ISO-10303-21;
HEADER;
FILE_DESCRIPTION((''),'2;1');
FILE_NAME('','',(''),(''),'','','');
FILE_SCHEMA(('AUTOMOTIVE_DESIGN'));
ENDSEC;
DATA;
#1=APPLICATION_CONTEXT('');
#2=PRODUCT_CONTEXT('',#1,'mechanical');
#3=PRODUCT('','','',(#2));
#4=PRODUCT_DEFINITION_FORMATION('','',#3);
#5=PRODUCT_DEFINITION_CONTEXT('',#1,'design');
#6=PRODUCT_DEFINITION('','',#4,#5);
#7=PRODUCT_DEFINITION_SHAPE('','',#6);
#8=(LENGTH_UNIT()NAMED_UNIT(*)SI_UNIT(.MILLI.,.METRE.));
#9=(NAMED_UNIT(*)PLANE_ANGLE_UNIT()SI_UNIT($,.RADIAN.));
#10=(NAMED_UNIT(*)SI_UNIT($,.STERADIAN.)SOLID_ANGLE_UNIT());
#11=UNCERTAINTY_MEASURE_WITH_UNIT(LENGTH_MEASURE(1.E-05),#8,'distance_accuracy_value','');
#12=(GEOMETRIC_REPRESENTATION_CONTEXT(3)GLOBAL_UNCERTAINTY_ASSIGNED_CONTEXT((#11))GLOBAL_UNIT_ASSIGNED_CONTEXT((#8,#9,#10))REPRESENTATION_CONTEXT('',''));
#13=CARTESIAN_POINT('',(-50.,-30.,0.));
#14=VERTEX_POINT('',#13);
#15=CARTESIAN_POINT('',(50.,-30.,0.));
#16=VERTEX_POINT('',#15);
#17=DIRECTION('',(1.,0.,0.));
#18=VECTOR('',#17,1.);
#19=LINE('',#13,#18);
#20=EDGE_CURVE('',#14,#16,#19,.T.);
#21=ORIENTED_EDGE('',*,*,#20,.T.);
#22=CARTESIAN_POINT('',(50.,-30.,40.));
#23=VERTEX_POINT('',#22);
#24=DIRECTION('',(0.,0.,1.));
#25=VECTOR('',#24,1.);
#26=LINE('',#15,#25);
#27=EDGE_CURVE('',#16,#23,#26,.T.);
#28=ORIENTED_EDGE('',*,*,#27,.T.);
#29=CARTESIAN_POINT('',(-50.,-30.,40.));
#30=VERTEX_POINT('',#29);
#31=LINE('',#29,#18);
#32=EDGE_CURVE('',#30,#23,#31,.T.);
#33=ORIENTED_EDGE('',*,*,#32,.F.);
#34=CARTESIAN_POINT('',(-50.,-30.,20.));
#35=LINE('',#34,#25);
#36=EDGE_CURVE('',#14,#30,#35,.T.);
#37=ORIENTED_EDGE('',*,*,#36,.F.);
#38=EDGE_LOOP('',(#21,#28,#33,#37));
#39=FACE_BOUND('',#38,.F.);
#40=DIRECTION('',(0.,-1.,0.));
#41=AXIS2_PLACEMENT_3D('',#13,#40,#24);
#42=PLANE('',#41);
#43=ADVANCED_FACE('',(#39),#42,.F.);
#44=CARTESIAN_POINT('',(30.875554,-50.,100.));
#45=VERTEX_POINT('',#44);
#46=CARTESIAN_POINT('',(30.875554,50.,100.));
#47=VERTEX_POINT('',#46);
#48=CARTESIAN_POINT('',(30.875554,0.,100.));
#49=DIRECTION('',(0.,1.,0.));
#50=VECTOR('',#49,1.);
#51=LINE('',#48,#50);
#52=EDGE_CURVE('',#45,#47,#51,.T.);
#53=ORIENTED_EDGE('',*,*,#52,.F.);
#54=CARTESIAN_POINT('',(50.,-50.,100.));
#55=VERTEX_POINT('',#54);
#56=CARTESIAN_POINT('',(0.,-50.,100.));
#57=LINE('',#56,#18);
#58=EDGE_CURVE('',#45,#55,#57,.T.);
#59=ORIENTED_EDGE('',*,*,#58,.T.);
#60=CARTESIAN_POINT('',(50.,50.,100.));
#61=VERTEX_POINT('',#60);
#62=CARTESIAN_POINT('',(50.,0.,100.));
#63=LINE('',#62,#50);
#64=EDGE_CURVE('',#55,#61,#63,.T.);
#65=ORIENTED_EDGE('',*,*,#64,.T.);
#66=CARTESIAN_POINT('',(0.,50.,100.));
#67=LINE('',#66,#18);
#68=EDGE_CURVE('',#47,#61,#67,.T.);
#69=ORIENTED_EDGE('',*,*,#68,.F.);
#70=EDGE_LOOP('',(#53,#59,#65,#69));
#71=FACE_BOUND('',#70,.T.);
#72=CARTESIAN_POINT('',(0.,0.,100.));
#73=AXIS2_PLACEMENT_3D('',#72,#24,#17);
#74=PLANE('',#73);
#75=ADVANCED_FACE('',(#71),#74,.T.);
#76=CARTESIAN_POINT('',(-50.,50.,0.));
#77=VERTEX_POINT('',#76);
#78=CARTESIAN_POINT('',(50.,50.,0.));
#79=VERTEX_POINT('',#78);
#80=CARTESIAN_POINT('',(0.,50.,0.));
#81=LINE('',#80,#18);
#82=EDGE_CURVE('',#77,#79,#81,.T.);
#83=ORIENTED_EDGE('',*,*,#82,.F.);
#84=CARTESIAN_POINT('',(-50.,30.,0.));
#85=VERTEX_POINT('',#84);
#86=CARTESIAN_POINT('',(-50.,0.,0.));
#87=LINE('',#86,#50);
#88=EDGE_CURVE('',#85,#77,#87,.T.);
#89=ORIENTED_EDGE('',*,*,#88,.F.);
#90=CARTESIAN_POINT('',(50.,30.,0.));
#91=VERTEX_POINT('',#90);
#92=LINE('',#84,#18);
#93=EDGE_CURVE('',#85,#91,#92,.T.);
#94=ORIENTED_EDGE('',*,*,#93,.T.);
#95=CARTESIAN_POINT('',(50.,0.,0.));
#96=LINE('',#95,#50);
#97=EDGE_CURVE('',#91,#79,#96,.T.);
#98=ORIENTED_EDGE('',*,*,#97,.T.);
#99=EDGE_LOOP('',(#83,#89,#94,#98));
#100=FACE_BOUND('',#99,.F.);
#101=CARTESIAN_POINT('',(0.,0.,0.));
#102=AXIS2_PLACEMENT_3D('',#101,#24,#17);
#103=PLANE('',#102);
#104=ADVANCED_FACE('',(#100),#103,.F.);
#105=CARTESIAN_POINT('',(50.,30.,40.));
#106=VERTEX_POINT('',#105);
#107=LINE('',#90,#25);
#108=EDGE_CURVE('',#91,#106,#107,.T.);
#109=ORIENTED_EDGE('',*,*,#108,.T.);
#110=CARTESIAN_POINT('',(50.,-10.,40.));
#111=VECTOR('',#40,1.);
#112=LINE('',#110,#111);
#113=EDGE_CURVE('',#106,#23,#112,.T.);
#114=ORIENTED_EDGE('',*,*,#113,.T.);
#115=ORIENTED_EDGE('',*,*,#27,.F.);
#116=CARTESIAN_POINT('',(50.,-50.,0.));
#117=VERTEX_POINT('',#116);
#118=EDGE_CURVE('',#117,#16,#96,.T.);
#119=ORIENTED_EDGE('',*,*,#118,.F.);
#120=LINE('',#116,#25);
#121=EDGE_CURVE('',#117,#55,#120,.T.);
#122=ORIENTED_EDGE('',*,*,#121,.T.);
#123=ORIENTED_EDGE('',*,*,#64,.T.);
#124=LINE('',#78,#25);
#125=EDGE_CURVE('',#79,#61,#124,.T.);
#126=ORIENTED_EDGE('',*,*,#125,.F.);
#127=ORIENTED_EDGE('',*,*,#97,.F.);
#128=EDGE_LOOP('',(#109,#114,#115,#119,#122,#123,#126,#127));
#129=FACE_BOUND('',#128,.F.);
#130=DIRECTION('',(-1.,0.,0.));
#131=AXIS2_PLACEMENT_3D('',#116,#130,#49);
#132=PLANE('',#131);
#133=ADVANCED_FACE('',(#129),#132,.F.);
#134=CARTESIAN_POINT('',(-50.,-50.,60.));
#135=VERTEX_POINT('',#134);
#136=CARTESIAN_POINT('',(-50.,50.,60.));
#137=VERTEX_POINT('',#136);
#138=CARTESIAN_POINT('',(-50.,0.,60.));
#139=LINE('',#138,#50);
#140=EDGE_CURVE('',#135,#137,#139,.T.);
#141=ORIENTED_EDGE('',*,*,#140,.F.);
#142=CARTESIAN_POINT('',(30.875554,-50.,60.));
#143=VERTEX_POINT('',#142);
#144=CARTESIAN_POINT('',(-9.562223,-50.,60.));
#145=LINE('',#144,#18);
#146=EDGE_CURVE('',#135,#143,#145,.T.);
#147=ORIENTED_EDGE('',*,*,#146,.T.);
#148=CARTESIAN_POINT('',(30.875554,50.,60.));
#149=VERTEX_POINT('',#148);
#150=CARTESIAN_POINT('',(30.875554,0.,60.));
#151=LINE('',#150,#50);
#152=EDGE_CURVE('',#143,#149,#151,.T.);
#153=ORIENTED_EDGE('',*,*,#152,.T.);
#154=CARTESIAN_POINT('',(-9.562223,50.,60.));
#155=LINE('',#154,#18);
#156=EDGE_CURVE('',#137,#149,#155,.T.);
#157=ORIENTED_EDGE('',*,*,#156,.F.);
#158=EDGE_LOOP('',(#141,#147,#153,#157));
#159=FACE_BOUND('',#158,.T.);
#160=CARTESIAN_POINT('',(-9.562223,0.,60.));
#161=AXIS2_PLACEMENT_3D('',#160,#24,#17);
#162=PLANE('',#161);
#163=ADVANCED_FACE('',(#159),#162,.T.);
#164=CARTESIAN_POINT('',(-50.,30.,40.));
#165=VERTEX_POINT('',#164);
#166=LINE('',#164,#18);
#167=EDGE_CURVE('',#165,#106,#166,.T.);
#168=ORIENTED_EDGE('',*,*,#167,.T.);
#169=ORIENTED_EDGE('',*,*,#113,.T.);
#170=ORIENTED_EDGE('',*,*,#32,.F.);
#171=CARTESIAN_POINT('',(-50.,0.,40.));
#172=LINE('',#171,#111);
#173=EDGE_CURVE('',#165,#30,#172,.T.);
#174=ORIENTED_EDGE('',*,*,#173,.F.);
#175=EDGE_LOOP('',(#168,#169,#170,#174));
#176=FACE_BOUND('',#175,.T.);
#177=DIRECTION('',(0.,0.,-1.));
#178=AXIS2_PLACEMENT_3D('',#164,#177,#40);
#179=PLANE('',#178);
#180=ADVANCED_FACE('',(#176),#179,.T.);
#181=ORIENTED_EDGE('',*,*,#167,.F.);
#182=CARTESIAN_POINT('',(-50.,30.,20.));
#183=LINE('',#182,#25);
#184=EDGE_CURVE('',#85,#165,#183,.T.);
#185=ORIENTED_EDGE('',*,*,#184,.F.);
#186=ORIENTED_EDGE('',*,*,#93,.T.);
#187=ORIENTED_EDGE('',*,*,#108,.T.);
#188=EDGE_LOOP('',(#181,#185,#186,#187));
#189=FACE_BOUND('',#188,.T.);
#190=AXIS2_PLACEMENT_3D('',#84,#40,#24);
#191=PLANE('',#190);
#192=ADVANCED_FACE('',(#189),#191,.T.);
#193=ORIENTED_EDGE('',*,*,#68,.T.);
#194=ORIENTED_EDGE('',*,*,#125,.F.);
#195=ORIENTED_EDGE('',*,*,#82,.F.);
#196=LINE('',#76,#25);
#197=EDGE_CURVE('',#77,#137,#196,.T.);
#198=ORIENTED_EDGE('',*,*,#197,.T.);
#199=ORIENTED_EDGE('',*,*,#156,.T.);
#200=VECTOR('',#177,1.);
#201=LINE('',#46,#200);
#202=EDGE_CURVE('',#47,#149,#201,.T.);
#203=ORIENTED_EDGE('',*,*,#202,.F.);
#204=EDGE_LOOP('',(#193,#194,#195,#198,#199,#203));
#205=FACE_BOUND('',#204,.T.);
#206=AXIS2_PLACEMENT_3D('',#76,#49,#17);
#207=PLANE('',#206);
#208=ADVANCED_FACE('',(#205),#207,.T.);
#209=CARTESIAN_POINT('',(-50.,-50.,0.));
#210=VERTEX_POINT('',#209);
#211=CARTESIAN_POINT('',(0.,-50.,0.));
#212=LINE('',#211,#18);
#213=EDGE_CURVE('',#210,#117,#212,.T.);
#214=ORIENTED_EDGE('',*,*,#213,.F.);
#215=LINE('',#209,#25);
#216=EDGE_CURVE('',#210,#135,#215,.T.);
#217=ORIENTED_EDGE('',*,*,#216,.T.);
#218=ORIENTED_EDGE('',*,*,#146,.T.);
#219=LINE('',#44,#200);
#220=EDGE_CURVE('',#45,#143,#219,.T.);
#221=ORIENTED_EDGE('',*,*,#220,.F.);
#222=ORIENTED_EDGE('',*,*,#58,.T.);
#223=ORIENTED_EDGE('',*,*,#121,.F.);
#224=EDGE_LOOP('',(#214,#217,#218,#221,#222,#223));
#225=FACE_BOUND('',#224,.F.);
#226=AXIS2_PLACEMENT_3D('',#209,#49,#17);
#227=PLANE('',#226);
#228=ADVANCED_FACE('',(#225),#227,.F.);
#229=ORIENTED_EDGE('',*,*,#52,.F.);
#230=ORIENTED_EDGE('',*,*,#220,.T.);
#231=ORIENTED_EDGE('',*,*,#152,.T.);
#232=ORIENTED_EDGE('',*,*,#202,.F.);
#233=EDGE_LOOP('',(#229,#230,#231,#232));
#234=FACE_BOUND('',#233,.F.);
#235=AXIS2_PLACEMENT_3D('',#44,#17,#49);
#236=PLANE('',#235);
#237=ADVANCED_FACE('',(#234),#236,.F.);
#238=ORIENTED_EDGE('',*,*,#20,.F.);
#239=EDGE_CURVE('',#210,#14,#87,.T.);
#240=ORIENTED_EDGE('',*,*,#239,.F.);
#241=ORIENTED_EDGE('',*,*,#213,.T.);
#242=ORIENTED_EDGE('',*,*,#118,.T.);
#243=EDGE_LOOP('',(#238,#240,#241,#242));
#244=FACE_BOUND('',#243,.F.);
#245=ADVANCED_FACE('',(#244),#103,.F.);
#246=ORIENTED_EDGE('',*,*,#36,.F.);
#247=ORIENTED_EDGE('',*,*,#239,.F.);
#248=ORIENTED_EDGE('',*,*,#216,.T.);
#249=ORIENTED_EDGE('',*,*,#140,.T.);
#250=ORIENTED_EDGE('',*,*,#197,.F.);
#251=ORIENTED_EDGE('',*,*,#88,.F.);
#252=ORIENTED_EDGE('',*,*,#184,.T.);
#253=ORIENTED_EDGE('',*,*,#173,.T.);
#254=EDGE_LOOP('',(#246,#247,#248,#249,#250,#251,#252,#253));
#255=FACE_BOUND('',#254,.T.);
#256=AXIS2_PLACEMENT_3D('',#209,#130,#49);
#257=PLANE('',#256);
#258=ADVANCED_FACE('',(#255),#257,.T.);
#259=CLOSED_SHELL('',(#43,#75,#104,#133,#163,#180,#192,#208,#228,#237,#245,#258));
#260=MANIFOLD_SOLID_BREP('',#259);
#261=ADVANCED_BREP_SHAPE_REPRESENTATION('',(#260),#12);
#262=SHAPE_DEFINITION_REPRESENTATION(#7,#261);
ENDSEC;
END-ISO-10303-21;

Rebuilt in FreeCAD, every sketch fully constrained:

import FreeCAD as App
import Part
import Sketcher

doc = App.newDocument("Part")
params = doc.addObject("Spreadsheet::Sheet", "Params")
for row, (alias, value) in enumerate([
    ("sketch1_width", "100 mm"),
    ("pad1_length", "100 mm"),
    ("sketch2_height", "100 mm"),
    ("pocket1_length", "40 mm"),
    ("sketch3_width", "60 mm"),
    ("sketch3_height", "40 mm"),
], start=1):
    params.set(f"A{row}", alias)
    params.set(f"B{row}", "=" + value)
    params.setAlias(f"B{row}", alias)

body = doc.addObject("PartDesign::Body", "Body")

# Sketch on XY plane
sketch1 = body.newObject("Sketcher::SketchObject", "Sketch")
sketch1.AttachmentSupport = (doc.getObject("XY_Plane"), [""])
sketch1.MapMode = "FlatFace"
sketch1.addGeometry([
    Part.LineSegment(App.Vector(-50, 50, 0), App.Vector(-50, -50, 0)),
    Part.LineSegment(App.Vector(-50, -50, 0), App.Vector(50, -50, 0)),
    Part.LineSegment(App.Vector(50, -50, 0), App.Vector(50, 50, 0)),
    Part.LineSegment(App.Vector(50, 50, 0), App.Vector(-50, 50, 0)),
], False)
sketch1.addConstraint([
    Sketcher.Constraint("Coincident", 0, 2, 1, 1),
    Sketcher.Constraint("Coincident", 1, 2, 2, 1),
    Sketcher.Constraint("Coincident", 2, 2, 3, 1),
    Sketcher.Constraint("Coincident", 3, 2, 0, 1),
    Sketcher.Constraint("Vertical", 0),
    Sketcher.Constraint("Horizontal", 1),
    Sketcher.Constraint("Vertical", 2),
    Sketcher.Constraint("Horizontal", 3),
    Sketcher.Constraint("Symmetric", 0, 2, 2, 2, -1, 1),
    Sketcher.Constraint("Equal", 3, 0),
    Sketcher.Constraint("DistanceX", 1, 1, 1, 2, 100.0),
])
sketch1.setExpression("Constraints[10]", "Params.sketch1_width")
pad1 = body.newObject("PartDesign::Pad", "Pad")
pad1.Profile = sketch1
pad1.setExpression("Length", "Params.pad1_length")

# Sketch on XY plane
sketch2 = body.newObject("Sketcher::SketchObject", "Sketch001")
sketch2.AttachmentSupport = (doc.getObject("XY_Plane"), [""])
sketch2.MapMode = "FlatFace"
sketch2.AttachmentOffset = App.Placement(App.Vector(0, 0, 100), App.Rotation())
sketch2.addGeometry([
    Part.LineSegment(App.Vector(-50, 50, 0), App.Vector(-50, -50, 0)),
    Part.LineSegment(App.Vector(-50, -50, 0), App.Vector(30.875554, -50, 0)),
    Part.LineSegment(App.Vector(30.875554, -50, 0), App.Vector(30.875554, 50, 0)),
    Part.LineSegment(App.Vector(30.875554, 50, 0), App.Vector(-50, 50, 0)),
], False)
sketch2.addConstraint([
    Sketcher.Constraint("Coincident", 0, 2, 1, 1),
    Sketcher.Constraint("Coincident", 1, 2, 2, 1),
    Sketcher.Constraint("Coincident", 2, 2, 3, 1),
    Sketcher.Constraint("Coincident", 3, 2, 0, 1),
    Sketcher.Constraint("Vertical", 0),
    Sketcher.Constraint("Horizontal", 1),
    Sketcher.Constraint("Vertical", 2),
    Sketcher.Constraint("Horizontal", 3),
    Sketcher.Constraint("DistanceY", 0, 2, 0, 1, 100.0),
    Sketcher.Constraint("DistanceX", 0, 2, -1, 1, 50.0),
    Sketcher.Constraint("DistanceY", 0, 2, -1, 1, 50.0),
    Sketcher.Constraint("DistanceX", 1, 1, 1, 2, 80.875554),
])
sketch2.setExpression("Constraints[8]", "Params.sketch2_height")
pocket1 = body.newObject("PartDesign::Pocket", "Pocket")
pocket1.Profile = sketch2
pocket1.setExpression("Length", "Params.pocket1_length")

# Sketch on YZ plane
sketch3 = body.newObject("Sketcher::SketchObject", "Sketch002")
sketch3.AttachmentSupport = (doc.getObject("YZ_Plane"), [""])
sketch3.MapMode = "FlatFace"
sketch3.AttachmentOffset = App.Placement(App.Vector(0, 0, -50), App.Rotation())
sketch3.addGeometry([
    Part.LineSegment(App.Vector(30, 40, 0), App.Vector(30, 0, 0)),
    Part.LineSegment(App.Vector(30, 0, 0), App.Vector(-30, 0, 0)),
    Part.LineSegment(App.Vector(-30, 0, 0), App.Vector(-30, 40, 0)),
    Part.LineSegment(App.Vector(-30, 40, 0), App.Vector(30, 40, 0)),
], False)
sketch3.addConstraint([
    Sketcher.Constraint("Coincident", 0, 2, 1, 1),
    Sketcher.Constraint("Coincident", 1, 2, 2, 1),
    Sketcher.Constraint("Coincident", 2, 2, 3, 1),
    Sketcher.Constraint("Coincident", 3, 2, 0, 1),
    Sketcher.Constraint("Vertical", 0),
    Sketcher.Constraint("Horizontal", 1),
    Sketcher.Constraint("Vertical", 2),
    Sketcher.Constraint("Horizontal", 3),
    Sketcher.Constraint("Symmetric", 0, 2, 1, 2, -1, 1),
    Sketcher.Constraint("DistanceX", 1, 2, 1, 1, 60.0),
    Sketcher.Constraint("DistanceY", 0, 2, 0, 1, 40.0),
])
sketch3.setExpression("Constraints[9]", "Params.sketch3_width")
sketch3.setExpression("Constraints[10]", "Params.sketch3_height")
pocket2 = body.newObject("PartDesign::Pocket", "Pocket001")
pocket2.Profile = sketch3
pocket2.Type = "ThroughAll"
pocket2.Reversed = True

doc.recompute()
